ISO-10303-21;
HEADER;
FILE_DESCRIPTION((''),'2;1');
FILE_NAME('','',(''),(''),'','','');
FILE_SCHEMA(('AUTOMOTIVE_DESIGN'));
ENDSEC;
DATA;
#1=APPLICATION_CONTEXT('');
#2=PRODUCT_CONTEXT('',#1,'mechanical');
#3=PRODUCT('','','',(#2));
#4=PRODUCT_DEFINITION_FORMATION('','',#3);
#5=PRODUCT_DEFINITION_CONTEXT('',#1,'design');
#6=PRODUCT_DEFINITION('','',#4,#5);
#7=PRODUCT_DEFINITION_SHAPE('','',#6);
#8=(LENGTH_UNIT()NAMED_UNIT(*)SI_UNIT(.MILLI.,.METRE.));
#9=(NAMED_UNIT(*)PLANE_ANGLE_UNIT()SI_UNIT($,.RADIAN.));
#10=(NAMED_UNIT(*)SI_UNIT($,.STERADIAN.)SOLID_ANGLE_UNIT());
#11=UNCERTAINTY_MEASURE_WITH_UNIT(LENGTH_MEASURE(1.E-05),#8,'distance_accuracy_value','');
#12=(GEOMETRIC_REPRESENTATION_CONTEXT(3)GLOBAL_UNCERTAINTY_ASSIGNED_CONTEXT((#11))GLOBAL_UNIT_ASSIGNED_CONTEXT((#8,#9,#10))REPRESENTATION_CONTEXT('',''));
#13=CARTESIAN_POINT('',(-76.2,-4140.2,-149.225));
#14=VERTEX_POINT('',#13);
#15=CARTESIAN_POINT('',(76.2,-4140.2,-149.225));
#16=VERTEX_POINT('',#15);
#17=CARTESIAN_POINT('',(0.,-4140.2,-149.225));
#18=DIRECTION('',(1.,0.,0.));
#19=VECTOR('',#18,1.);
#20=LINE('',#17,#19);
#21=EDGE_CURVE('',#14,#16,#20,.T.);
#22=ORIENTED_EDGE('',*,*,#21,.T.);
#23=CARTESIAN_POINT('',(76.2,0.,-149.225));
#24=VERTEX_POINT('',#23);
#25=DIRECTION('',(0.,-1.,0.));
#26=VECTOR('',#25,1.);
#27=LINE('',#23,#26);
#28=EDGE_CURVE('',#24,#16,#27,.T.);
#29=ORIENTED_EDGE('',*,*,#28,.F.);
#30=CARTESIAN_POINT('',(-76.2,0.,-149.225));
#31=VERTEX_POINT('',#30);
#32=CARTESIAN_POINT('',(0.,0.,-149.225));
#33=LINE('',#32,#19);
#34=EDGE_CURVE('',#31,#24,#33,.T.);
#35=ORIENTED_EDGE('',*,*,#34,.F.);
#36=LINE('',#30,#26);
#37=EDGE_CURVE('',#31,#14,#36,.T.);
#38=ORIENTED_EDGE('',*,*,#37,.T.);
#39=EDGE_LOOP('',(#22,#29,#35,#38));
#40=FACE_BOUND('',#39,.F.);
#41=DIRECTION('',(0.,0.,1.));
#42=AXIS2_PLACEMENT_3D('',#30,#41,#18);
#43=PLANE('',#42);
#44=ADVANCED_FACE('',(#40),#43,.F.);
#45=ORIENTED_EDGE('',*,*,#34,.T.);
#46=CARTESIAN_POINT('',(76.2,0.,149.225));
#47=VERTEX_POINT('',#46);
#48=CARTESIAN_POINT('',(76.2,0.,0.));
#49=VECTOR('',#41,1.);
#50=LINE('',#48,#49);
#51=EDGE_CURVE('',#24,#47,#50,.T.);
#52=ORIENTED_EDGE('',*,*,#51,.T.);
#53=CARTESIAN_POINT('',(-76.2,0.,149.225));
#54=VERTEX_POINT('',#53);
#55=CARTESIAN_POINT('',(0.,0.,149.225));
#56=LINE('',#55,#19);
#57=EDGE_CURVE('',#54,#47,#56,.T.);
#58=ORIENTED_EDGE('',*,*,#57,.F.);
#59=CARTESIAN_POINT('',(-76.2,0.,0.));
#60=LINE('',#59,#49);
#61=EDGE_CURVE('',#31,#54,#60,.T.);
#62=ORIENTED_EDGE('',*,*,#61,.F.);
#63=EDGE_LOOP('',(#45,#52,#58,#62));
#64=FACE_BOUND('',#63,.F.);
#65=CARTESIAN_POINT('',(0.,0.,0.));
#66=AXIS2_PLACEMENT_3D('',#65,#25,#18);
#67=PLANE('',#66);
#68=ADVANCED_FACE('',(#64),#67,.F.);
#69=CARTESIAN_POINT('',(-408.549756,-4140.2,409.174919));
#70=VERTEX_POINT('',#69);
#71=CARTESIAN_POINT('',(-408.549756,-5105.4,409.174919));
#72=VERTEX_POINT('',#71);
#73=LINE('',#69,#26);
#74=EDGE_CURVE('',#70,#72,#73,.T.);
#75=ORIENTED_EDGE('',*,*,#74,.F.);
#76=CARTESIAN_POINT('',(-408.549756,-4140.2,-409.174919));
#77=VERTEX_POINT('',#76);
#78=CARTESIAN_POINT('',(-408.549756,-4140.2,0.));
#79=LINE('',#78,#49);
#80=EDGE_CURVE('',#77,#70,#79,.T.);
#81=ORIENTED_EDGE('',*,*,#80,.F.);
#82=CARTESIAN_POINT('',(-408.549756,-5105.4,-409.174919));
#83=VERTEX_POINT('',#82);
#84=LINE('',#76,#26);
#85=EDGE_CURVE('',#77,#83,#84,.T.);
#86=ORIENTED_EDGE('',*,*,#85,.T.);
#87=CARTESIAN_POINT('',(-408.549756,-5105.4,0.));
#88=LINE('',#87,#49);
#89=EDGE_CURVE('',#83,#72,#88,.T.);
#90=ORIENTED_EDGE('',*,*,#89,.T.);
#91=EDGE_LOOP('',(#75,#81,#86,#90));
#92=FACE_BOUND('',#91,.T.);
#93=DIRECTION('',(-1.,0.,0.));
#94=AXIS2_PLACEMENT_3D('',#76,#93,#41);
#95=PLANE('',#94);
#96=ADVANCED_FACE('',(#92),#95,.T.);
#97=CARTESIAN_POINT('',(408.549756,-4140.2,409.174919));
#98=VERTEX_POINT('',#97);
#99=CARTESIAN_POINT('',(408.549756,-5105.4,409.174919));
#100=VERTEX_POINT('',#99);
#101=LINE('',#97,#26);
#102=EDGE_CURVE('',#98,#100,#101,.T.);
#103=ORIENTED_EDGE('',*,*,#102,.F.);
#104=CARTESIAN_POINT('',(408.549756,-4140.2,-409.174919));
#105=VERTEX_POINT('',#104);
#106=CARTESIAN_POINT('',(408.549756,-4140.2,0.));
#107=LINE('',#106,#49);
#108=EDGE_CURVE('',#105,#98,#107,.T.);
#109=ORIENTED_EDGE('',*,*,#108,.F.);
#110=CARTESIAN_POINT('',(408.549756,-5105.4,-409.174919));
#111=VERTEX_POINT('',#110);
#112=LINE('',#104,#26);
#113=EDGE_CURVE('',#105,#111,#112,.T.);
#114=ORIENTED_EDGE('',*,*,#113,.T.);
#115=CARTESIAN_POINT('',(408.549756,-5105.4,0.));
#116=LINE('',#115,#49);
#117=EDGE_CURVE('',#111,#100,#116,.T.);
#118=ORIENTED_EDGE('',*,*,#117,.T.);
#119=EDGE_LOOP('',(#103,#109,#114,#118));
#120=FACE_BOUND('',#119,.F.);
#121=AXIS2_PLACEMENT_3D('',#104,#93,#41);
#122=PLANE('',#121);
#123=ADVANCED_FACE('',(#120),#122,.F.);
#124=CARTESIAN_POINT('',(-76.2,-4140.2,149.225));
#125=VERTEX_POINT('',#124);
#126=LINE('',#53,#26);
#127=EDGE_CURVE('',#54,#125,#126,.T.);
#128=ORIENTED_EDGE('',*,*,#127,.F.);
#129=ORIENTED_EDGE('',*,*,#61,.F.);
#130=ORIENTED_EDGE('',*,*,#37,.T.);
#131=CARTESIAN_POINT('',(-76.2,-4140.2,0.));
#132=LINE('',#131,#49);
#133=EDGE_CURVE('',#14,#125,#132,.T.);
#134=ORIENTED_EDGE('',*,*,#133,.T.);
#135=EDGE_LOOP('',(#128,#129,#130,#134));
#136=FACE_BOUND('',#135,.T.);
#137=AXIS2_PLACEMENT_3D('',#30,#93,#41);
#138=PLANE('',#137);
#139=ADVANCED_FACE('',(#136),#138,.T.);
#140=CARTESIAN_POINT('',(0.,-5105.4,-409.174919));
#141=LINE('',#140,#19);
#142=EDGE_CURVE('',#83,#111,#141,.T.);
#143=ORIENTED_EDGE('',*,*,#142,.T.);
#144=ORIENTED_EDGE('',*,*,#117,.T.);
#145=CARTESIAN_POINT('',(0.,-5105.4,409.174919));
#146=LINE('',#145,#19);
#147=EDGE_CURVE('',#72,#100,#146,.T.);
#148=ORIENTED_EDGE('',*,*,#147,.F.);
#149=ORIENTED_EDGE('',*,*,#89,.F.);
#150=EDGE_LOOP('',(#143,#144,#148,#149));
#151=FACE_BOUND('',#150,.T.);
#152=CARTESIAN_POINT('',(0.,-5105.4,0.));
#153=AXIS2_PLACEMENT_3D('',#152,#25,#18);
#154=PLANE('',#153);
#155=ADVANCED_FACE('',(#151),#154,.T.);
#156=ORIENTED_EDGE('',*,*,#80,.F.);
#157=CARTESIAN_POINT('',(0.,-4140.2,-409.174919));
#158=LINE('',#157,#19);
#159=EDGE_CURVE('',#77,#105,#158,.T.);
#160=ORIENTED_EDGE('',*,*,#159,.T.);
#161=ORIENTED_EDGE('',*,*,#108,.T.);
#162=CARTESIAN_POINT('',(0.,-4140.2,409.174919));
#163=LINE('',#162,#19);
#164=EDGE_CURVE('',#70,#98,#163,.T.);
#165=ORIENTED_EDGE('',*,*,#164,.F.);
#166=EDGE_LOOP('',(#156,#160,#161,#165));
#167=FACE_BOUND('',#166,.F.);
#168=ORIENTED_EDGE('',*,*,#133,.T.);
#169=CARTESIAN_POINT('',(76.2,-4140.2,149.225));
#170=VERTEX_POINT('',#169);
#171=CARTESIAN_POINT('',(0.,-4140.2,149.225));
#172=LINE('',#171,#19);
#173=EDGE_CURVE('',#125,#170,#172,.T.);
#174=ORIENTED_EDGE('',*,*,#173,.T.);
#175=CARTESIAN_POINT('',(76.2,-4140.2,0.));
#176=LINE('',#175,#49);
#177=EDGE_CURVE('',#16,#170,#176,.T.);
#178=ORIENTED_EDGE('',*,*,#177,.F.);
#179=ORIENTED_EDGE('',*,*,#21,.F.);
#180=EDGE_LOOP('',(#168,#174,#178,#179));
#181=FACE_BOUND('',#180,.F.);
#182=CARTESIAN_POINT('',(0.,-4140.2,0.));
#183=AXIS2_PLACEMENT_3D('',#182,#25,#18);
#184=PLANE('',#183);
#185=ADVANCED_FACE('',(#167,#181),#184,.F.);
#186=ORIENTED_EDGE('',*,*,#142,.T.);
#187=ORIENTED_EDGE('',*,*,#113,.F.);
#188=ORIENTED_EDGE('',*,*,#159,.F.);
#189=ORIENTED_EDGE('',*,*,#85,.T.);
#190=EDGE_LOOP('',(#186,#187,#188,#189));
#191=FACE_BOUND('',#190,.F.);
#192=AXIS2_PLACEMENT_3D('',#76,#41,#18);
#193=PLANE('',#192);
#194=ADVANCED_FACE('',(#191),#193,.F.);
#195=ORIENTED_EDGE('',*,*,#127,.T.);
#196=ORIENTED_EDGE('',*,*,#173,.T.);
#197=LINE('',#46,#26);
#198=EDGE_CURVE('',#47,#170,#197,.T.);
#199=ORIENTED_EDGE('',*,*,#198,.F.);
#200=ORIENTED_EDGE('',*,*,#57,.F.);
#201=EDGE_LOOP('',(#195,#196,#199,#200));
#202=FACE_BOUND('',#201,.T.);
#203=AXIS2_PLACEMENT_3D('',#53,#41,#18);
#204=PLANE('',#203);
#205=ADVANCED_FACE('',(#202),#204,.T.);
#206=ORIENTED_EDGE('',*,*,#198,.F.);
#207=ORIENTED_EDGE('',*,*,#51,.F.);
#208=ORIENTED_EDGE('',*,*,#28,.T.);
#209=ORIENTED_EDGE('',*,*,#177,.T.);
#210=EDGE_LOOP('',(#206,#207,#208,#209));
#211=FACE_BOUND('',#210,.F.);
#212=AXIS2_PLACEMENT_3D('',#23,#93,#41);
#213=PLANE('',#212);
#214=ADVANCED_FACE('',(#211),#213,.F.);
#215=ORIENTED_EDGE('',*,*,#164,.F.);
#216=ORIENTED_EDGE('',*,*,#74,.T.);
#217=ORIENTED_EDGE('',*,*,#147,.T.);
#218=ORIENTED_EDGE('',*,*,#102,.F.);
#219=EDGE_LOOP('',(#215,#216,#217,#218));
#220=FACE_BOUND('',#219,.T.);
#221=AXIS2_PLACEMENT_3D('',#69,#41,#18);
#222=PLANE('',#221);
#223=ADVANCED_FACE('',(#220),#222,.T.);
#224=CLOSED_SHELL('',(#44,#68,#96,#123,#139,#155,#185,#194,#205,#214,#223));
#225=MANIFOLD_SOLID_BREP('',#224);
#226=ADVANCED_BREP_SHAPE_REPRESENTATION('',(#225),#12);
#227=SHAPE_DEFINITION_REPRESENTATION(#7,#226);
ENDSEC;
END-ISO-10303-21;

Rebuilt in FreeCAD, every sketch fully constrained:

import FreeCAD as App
import Part
import Sketcher

V = App.Vector
Q = App.Units.Quantity

doc = App.newDocument("Part")
body = doc.addObject("PartDesign::Body", "Body")

sketch1 = body.newObject("Sketcher::SketchObject", "Sketch")
sketch1.AttachmentSupport = (doc.getObject("XZ_Plane"), [""])
sketch1.MapMode = "FlatFace"
sketch1.addGeometry([
    Part.LineSegment(V(-76, 149, 0), V(-76, -149, 0)),
    Part.LineSegment(V(-76, -149, 0), V(76, -149, 0)),
    Part.LineSegment(V(76, -149, 0), V(76, 149, 0)),
    Part.LineSegment(V(76, 149, 0), V(-76, 149, 0)),
], False)
sketch1.addConstraint([
    Sketcher.Constraint("Coincident", 0, 2, 1, 1),
    Sketcher.Constraint("Coincident", 1, 2, 2, 1),
    Sketcher.Constraint("Coincident", 2, 2, 3, 1),
    Sketcher.Constraint("Coincident", 3, 2, 0, 1),
    Sketcher.Constraint("Vertical", 0),
    Sketcher.Constraint("Horizontal", 1),
    Sketcher.Constraint("Vertical", 2),
    Sketcher.Constraint("Horizontal", 3),
    Sketcher.Constraint("Symmetric", 0, 2, 2, 2, -1, 1),
    Sketcher.Constraint("DistanceX", 1, 1, 1, 2, Q("6 in")),
    Sketcher.Constraint("DistanceY", 0, 2, 0, 1, Q("11.75 in")),
])
pad1 = body.newObject("PartDesign::Pad", "Pad")
pad1.Profile = sketch1
pad1.Length = Q("163 in")

sketch2 = body.newObject("Sketcher::SketchObject", "Sketch001")
sketch2.AttachmentSupport = (doc.getObject("XZ_Plane"), [""])
sketch2.MapMode = "FlatFace"
sketch2.AttachmentOffset = App.Placement(V(0, 0, 163 * 25.4), App.Rotation())
sketch2.addGeometry([
    Part.LineSegment(V(-409, 409, 0), V(-409, -409, 0)),
    Part.LineSegment(V(-409, -409, 0), V(409, -409, 0)),
    Part.LineSegment(V(409, -409, 0), V(409, 409, 0)),
    Part.LineSegment(V(409, 409, 0), V(-409, 409, 0)),
], False)
sketch2.addConstraint([
    Sketcher.Constraint("Coincident", 0, 2, 1, 1),
    Sketcher.Constraint("Coincident", 1, 2, 2, 1),
    Sketcher.Constraint("Coincident", 2, 2, 3, 1),
    Sketcher.Constraint("Coincident", 3, 2, 0, 1),
    Sketcher.Constraint("Vertical", 0),
    Sketcher.Constraint("Horizontal", 1),
    Sketcher.Constraint("Vertical", 2),
    Sketcher.Constraint("Horizontal", 3),
    Sketcher.Constraint("Symmetric", 0, 2, 2, 2, -1, 1),
    Sketcher.Constraint("DistanceX", 1, 1, 1, 2, Q("817.099512 mm")),
    Sketcher.Constraint("DistanceY", 0, 2, 0, 1, Q("818.349838 mm")),
])
pad2 = body.newObject("PartDesign::Pad", "Pad001")
pad2.Profile = sketch2
pad2.Length = Q("38 in")

doc.recompute()
